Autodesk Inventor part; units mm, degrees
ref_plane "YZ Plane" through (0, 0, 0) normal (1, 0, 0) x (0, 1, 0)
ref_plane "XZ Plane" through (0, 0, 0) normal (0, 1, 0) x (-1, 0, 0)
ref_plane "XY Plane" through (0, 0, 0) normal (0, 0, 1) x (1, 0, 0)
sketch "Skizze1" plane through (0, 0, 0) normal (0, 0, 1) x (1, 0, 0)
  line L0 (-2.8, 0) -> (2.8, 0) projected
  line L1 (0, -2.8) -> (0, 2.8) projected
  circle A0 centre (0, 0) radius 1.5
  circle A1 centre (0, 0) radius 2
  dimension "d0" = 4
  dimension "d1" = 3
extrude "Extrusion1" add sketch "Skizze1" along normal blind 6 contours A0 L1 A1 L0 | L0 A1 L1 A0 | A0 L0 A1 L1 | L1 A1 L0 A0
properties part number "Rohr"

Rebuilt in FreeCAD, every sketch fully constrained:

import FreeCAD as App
import Part
import Sketcher
Q = App.Units.Quantity

doc = App.newDocument("Part")
body = doc.addObject("PartDesign::Body", "Body")

sketch1 = doc.addObject("Sketcher::SketchObject", "Sketch")
body.addObject(sketch1)
sketch1.AttachmentSupport = (doc.XY_Plane, [""])
sketch1.MapMode = "FlatFace"
sketch1.addGeometry([
    Part.Circle(App.Vector(0, 0, 0), App.Vector(0, 0, 1), 2),
    Part.Circle(App.Vector(0, 0, 0), App.Vector(0, 0, 1), 1.5),
], False)
sketch1.addConstraint([
    Sketcher.Constraint("Coincident", 0, 3, -1, 1),
    Sketcher.Constraint("Coincident", 1, 3, -1, 1),
    Sketcher.Constraint("Diameter", 0, Q("4 mm")),
    Sketcher.Constraint("Diameter", 1, Q("3 mm")),
])
pad1 = doc.addObject("PartDesign::Pad", "Pad")
body.addObject(pad1)
pad1.Profile = sketch1
pad1.Length = 6

doc.recompute()
